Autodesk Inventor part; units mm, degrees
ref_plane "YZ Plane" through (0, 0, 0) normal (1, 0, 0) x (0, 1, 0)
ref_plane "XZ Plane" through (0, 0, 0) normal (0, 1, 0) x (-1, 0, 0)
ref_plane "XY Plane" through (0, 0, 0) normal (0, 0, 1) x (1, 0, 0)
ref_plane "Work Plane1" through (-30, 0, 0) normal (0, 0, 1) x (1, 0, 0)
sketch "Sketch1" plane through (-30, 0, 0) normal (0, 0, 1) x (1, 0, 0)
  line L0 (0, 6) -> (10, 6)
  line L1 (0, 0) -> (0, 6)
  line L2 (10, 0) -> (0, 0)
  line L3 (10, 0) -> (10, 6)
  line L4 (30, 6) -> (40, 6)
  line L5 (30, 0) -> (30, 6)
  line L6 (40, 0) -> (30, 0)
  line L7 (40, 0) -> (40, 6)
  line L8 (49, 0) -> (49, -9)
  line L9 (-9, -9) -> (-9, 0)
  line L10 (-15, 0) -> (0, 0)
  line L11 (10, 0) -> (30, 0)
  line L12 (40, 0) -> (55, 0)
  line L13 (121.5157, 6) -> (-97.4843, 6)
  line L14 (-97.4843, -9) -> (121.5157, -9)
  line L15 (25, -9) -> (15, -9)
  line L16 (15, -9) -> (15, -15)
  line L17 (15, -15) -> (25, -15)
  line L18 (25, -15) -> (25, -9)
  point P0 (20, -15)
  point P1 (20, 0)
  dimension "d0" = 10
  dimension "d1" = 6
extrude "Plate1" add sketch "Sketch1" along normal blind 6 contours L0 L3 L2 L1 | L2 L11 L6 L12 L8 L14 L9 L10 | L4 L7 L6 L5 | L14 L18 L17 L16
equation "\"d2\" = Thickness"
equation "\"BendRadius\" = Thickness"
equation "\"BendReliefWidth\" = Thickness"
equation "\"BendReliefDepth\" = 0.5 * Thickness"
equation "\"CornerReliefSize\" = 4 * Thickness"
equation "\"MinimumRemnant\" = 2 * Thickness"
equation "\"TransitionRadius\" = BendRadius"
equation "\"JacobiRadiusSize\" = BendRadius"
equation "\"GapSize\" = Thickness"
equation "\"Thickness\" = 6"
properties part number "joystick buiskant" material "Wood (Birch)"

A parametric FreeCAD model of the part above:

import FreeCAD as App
import Part
import Sketcher

V = App.Vector

doc = App.newDocument("Part")
body = doc.addObject("PartDesign::Body", "Body")

sketch1 = body.newObject("Sketcher::SketchObject", "Sketch")
sketch1.AttachmentSupport = (doc.getObject("XY_Plane"), [""])
sketch1.MapMode = "FlatFace"
sketch1.addGeometry(Part.LineSegment(V(-20, 6, 0), V(-30, 6, 0)), False)
sketch1.addGeometry(Part.LineSegment(V(-30, 6, 0), V(-30, 0, 0)), False)
sketch1.addGeometry(Part.LineSegment(V(-30, 0, 0), V(-39, 0, 0)), False)
sketch1.addGeometry(Part.LineSegment(V(-39, 0, 0), V(-39, -9, 0)), False)
sketch1.addGeometry(Part.LineSegment(V(-39, -9, 0), V(-15, -9, 0)), False)
sketch1.addGeometry(Part.LineSegment(V(-15, -9, 0), V(-15, -15, 0)), False)
sketch1.addGeometry(Part.LineSegment(V(-15, -15, 0), V(-5, -15, 0)), False)
sketch1.addGeometry(Part.LineSegment(V(-5, -15, 0), V(-5, -9, 0)), False)
sketch1.addGeometry(Part.LineSegment(V(-5, -9, 0), V(19, -9, 0)), False)
sketch1.addGeometry(Part.LineSegment(V(19, -9, 0), V(19, 0, 0)), False)
sketch1.addGeometry(Part.LineSegment(V(19, 0, 0), V(10, 0, 0)), False)
sketch1.addGeometry(Part.LineSegment(V(10, 0, 0), V(10, 6, 0)), False)
sketch1.addGeometry(Part.LineSegment(V(10, 6, 0), V(0, 6, 0)), False)
sketch1.addGeometry(Part.LineSegment(V(0, 6, 0), V(0, 0, 0)), False)
sketch1.addGeometry(Part.LineSegment(V(0, 0, 0), V(-20, 0, 0)), False)
sketch1.addGeometry(Part.LineSegment(V(-20, 0, 0), V(-20, 6, 0)), False)
sketch1.addConstraint(Sketcher.Constraint("Coincident", 0, 2, 1, 1))
sketch1.addConstraint(Sketcher.Constraint("Coincident", 1, 2, 2, 1))
sketch1.addConstraint(Sketcher.Constraint("Coincident", 2, 2, 3, 1))
sketch1.addConstraint(Sketcher.Constraint("Coincident", 3, 2, 4, 1))
sketch1.addConstraint(Sketcher.Constraint("Coincident", 4, 2, 5, 1))
sketch1.addConstraint(Sketcher.Constraint("Coincident", 5, 2, 6, 1))
sketch1.addConstraint(Sketcher.Constraint("Coincident", 6, 2, 7, 1))
sketch1.addConstraint(Sketcher.Constraint("Coincident", 7, 2, 8, 1))
sketch1.addConstraint(Sketcher.Constraint("Coincident", 8, 2, 9, 1))
sketch1.addConstraint(Sketcher.Constraint("Coincident", 9, 2, 10, 1))
sketch1.addConstraint(Sketcher.Constraint("Coincident", 10, 2, 11, 1))
sketch1.addConstraint(Sketcher.Constraint("Coincident", 11, 2, 12, 1))
sketch1.addConstraint(Sketcher.Constraint("Coincident", 12, 2, 13, 1))
sketch1.addConstraint(Sketcher.Constraint("Coincident", 13, 2, 14, 1))
sketch1.addConstraint(Sketcher.Constraint("Coincident", 14, 2, 15, 1))
sketch1.addConstraint(Sketcher.Constraint("Coincident", 15, 2, 0, 1))
sketch1.addConstraint(Sketcher.Constraint("Horizontal", 0))
sketch1.addConstraint(Sketcher.Constraint("Vertical", 1))
sketch1.addConstraint(Sketcher.Constraint("Horizontal", 2))
sketch1.addConstraint(Sketcher.Constraint("Vertical", 3))
sketch1.addConstraint(Sketcher.Constraint("Horizontal", 4))
sketch1.addConstraint(Sketcher.Constraint("Vertical", 5))
sketch1.addConstraint(Sketcher.Constraint("Horizontal", 6))
sketch1.addConstraint(Sketcher.Constraint("Vertical", 7))
sketch1.addConstraint(Sketcher.Constraint("Horizontal", 8))
sketch1.addConstraint(Sketcher.Constraint("Vertical", 9))
sketch1.addConstraint(Sketcher.Constraint("Horizontal", 10))
sketch1.addConstraint(Sketcher.Constraint("Vertical", 11))
sketch1.addConstraint(Sketcher.Constraint("Horizontal", 12))
sketch1.addConstraint(Sketcher.Constraint("Vertical", 13))
sketch1.addConstraint(Sketcher.Constraint("Horizontal", 14))
sketch1.addConstraint(Sketcher.Constraint("Vertical", 15))
sketch1.addConstraint(Sketcher.Constraint("Coincident", 13, 2, -1, 1))
sketch1.addConstraint(Sketcher.Constraint("PointOnObject", 1, 2, -1))
sketch1.addConstraint(Sketcher.Constraint("PointOnObject", 9, 2, -1))
sketch1.addConstraint(Sketcher.Constraint("Horizontal", 4, 2, 7, 2))
sketch1.addConstraint(Sketcher.Constraint("Horizontal", 0, 2, 11, 2))
sketch1.addConstraint(Sketcher.Constraint("Equal", 0, 6))
sketch1.addConstraint(Sketcher.Constraint("Equal", 4, 8))
sketch1.addConstraint(Sketcher.Constraint("Equal", 2, 10))
sketch1.addConstraint(Sketcher.Constraint("Equal", 6, 12))
sketch1.addConstraint(Sketcher.Constraint("Equal", 10, 3))
sketch1.addConstraint(Sketcher.Constraint("Equal", 1, 5))
sketch1.addConstraint(Sketcher.Constraint("DistanceX", 0, 2, 0, 1, 10.0))
sketch1.addConstraint(Sketcher.Constraint("DistanceY", 1, 2, 1, 1, 6.0))
sketch1.addConstraint(Sketcher.Constraint("DistanceX", 2, 2, 2, 1, 9.0))
sketch1.addConstraint(Sketcher.Constraint("DistanceX", 4, 1, 4, 2, 24.0))
pad1 = body.newObject("PartDesign::Pad", "Pad")
pad1.Profile = sketch1
pad1.Length = 6

doc.recompute()
